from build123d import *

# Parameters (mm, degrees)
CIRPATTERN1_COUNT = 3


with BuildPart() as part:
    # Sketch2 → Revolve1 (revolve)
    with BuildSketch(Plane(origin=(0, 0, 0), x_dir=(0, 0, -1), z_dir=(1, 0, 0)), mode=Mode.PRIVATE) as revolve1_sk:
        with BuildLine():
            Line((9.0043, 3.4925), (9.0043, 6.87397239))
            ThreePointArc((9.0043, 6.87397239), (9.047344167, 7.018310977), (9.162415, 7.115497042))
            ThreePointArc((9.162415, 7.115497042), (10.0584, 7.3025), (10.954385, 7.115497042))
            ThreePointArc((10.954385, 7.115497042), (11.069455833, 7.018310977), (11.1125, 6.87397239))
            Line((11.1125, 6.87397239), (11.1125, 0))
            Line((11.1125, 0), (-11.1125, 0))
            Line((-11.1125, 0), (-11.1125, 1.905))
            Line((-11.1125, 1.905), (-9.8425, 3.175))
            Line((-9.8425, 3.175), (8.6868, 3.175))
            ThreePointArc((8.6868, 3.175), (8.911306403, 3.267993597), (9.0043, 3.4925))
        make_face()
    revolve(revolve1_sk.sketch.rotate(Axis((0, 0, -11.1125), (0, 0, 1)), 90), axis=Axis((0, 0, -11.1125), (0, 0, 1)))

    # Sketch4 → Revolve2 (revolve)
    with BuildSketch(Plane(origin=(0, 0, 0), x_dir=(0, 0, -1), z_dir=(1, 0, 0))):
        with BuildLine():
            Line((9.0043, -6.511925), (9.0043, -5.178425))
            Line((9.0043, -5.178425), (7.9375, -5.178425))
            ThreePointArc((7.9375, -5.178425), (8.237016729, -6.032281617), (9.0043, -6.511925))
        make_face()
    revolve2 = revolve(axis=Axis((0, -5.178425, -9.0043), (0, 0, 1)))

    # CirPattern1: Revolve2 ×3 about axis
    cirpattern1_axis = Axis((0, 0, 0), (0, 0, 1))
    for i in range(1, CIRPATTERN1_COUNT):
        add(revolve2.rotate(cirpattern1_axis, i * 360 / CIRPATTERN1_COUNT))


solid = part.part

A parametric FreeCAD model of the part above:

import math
import FreeCAD as App
import Part
import Sketcher
from FreeCAD import Vector
Q = App.Units.Quantity

doc = App.newDocument("Part")
params = doc.addObject("Spreadsheet::Sheet", "Params")
for row, (alias, value) in enumerate([
    ("sketch1_width", "0.075 in"),
    ("sketch1_height", "0.875 in"),
    ("revolution_angle", "360 deg"),
    ("sketch2_height", "0.042 in"),
    ("revolution2_angle", "360 deg"),
], start=1):
    params.set(f"A{row}", alias)
    params.set(f"B{row}", "=" + value)
    params.setAlias(f"B{row}", alias)

body = doc.addObject("PartDesign::Body", "Body")

# Sketch on YZ plane
sketch1 = body.newObject("Sketcher::SketchObject", "Sketch")
sketch1.AttachmentSupport = (doc.getObject("YZ_Plane"), [""])
sketch1.MapMode = "FlatFace"
sketch1.addGeometry([
    Part.LineSegment(Vector(6.87, -9, 0), Vector(3.49, -9, 0)),  # 0
    Part.ArcOfCircle(Part.Circle(Vector(3.49, -8.69, 0), Vector(0, 0, 1), 0.32), math.radians(180), math.radians(270)),  # 1
    Part.LineSegment(Vector(3.17, -8.69, 0), Vector(3.17, 9.84, 0)),  # 2
    Part.LineSegment(Vector(3.17, 9.84, 0), Vector(1.91, 11.11, 0)),  # 3
    Part.LineSegment(Vector(1.91, 11.11, 0), Vector(0, 11.11, 0)),  # 4
    Part.LineSegment(Vector(0, 11.11, 0), Vector(0, -11.11, 0)),  # 5
    Part.LineSegment(Vector(0, -11.11, 0), Vector(6.87, -11.11, 0)),  # 6
    Part.ArcOfCircle(Part.Circle(Vector(6.87, -10.85, 0), Vector(0, 0, 1), 0.26), math.radians(-90), math.radians(-24)),  # 7
    Part.ArcOfCircle(Part.Circle(Vector(5.06, -10.06, 0), Vector(0, 0, 1), 2.24), math.radians(-24), math.radians(24)),  # 8
    Part.ArcOfCircle(Part.Circle(Vector(6.87, -9.27, 0), Vector(0, 0, 1), 0.26), math.radians(24), math.radians(90)),  # 9
], False)
sketch1.addConstraint([
    Sketcher.Constraint("Tangent", 0, 2, 1, 2),
    Sketcher.Constraint("Tangent", 1, 1, 2, 1),
    Sketcher.Constraint("Coincident", 2, 2, 3, 1),
    Sketcher.Constraint("Coincident", 3, 2, 4, 1),
    Sketcher.Constraint("Coincident", 4, 2, 5, 1),
    Sketcher.Constraint("Coincident", 5, 2, 6, 1),
    Sketcher.Constraint("Tangent", 6, 2, 7, 1),
    Sketcher.Constraint("Tangent", 7, 2, 8, 1),
    Sketcher.Constraint("Tangent", 8, 2, 9, 1),
    Sketcher.Constraint("Tangent", 9, 2, 0, 1),
    Sketcher.Constraint("Horizontal", 0),
    Sketcher.Constraint("Vertical", 2),
    Sketcher.Constraint("Horizontal", 4),
    Sketcher.Constraint("Vertical", 5),
    Sketcher.Constraint("Horizontal", 6),
    Sketcher.Constraint("Equal", 7, 9),
    Sketcher.Constraint("Symmetric", 4, 2, 5, 2, -1, 1),
    Sketcher.Constraint("Vertical", 7, 3, 9, 3),
    Sketcher.Constraint("Angle", 3, Q("135 deg")),
    Sketcher.Constraint("Radius", 1, Q("0.0125 in")),
    Sketcher.Constraint("DistanceX", 4, 2, 4, 1, Q("0.075 in")),
    Sketcher.Constraint("DistanceY", 5, 2, 5, 1, Q("0.875 in")),
    Sketcher.Constraint("DistanceX", 3, 2, 2, 2, Q("0.05 in")),
    Sketcher.Constraint("DistanceY", 2, 1, 2, 2, Q("0.7295 in")),
    Sketcher.Constraint("Radius", 7, Q("0.263525 mm")),
    Sketcher.Constraint("Radius", 8, Q("2.239962 mm")),
    Sketcher.Constraint("DistanceX", 0, 2, 0, 1, Q("3.381472 mm")),
])
sketch1.setExpression("Constraints[20]", "Params.sketch1_width")
sketch1.setExpression("Constraints[21]", "Params.sketch1_height")
revolution = body.newObject("PartDesign::Revolution", "Revolution")
revolution.Profile = sketch1
revolution.ReferenceAxis = (sketch1, ["V_Axis"])
revolution.setExpression("Angle", "Params.revolution_angle")

# Sketch on YZ plane
sketch2 = body.newObject("Sketcher::SketchObject", "Sketch001")
sketch2.AttachmentSupport = (doc.getObject("YZ_Plane"), [""])
sketch2.MapMode = "FlatFace"
sketch2.addGeometry([
    Part.LineSegment(Vector(-6.5, -9, 0), Vector(-5.2, -9, 0)),
    Part.LineSegment(Vector(-5.2, -9, 0), Vector(-5.2, -7.9, 0)),
    Part.ArcOfCircle(Part.Circle(Vector(-5.2, -9.3, 0), Vector(0, 0, 1), 1.4), math.radians(90), math.radians(167)),
], False)
sketch2.addGeometry(Part.LineSegment(Vector(-5.2, -9.3, 0), Vector(-5.2, -7.9, 0)), True)  # axis
sketch2.addConstraint([
    Sketcher.Constraint("Coincident", 0, 2, 1, 1),
    Sketcher.Constraint("Coincident", 1, 2, 2, 1),
    Sketcher.Constraint("Coincident", 2, 2, 0, 1),
    Sketcher.Constraint("Horizontal", 0),
    Sketcher.Constraint("Vertical", 1),
    Sketcher.Constraint("Vertical", 3),
    Sketcher.Constraint("Coincident", 3, 1, 2, 3),
    Sketcher.Constraint("Coincident", 3, 2, 1, 2),
    Sketcher.Constraint("DistanceY", 1, 1, 1, 2, Q("0.042 in")),
    Sketcher.Constraint("DistanceX", 0, 1, 0, 2, Q("0.0525 in")),
    Sketcher.Constraint("DistanceY", 1, 2, -1, 1, Q("0.3125 in")),
    Sketcher.Constraint("DistanceX", 2, 3, -1, 1, Q("5.178425 mm")),
])
sketch2.setExpression("Constraints[8]", "Params.sketch2_height")
revolution2 = body.newObject("PartDesign::Revolution", "Revolution001")
revolution2.Profile = sketch2
revolution2.ReferenceAxis = (sketch2, ["Axis0"])
revolution2.setExpression("Angle", "Params.revolution2_angle")
doc.recompute()

polarpattern = body.newObject("PartDesign::PolarPattern", "PolarPattern")
polarpattern.Originals = [revolution2]
polarpattern.Axis = (doc.getObject("Z_Axis"), [""])
polarpattern.Angle = 360
polarpattern.Occurrences = 3
body.Tip = polarpattern

doc.recompute()
